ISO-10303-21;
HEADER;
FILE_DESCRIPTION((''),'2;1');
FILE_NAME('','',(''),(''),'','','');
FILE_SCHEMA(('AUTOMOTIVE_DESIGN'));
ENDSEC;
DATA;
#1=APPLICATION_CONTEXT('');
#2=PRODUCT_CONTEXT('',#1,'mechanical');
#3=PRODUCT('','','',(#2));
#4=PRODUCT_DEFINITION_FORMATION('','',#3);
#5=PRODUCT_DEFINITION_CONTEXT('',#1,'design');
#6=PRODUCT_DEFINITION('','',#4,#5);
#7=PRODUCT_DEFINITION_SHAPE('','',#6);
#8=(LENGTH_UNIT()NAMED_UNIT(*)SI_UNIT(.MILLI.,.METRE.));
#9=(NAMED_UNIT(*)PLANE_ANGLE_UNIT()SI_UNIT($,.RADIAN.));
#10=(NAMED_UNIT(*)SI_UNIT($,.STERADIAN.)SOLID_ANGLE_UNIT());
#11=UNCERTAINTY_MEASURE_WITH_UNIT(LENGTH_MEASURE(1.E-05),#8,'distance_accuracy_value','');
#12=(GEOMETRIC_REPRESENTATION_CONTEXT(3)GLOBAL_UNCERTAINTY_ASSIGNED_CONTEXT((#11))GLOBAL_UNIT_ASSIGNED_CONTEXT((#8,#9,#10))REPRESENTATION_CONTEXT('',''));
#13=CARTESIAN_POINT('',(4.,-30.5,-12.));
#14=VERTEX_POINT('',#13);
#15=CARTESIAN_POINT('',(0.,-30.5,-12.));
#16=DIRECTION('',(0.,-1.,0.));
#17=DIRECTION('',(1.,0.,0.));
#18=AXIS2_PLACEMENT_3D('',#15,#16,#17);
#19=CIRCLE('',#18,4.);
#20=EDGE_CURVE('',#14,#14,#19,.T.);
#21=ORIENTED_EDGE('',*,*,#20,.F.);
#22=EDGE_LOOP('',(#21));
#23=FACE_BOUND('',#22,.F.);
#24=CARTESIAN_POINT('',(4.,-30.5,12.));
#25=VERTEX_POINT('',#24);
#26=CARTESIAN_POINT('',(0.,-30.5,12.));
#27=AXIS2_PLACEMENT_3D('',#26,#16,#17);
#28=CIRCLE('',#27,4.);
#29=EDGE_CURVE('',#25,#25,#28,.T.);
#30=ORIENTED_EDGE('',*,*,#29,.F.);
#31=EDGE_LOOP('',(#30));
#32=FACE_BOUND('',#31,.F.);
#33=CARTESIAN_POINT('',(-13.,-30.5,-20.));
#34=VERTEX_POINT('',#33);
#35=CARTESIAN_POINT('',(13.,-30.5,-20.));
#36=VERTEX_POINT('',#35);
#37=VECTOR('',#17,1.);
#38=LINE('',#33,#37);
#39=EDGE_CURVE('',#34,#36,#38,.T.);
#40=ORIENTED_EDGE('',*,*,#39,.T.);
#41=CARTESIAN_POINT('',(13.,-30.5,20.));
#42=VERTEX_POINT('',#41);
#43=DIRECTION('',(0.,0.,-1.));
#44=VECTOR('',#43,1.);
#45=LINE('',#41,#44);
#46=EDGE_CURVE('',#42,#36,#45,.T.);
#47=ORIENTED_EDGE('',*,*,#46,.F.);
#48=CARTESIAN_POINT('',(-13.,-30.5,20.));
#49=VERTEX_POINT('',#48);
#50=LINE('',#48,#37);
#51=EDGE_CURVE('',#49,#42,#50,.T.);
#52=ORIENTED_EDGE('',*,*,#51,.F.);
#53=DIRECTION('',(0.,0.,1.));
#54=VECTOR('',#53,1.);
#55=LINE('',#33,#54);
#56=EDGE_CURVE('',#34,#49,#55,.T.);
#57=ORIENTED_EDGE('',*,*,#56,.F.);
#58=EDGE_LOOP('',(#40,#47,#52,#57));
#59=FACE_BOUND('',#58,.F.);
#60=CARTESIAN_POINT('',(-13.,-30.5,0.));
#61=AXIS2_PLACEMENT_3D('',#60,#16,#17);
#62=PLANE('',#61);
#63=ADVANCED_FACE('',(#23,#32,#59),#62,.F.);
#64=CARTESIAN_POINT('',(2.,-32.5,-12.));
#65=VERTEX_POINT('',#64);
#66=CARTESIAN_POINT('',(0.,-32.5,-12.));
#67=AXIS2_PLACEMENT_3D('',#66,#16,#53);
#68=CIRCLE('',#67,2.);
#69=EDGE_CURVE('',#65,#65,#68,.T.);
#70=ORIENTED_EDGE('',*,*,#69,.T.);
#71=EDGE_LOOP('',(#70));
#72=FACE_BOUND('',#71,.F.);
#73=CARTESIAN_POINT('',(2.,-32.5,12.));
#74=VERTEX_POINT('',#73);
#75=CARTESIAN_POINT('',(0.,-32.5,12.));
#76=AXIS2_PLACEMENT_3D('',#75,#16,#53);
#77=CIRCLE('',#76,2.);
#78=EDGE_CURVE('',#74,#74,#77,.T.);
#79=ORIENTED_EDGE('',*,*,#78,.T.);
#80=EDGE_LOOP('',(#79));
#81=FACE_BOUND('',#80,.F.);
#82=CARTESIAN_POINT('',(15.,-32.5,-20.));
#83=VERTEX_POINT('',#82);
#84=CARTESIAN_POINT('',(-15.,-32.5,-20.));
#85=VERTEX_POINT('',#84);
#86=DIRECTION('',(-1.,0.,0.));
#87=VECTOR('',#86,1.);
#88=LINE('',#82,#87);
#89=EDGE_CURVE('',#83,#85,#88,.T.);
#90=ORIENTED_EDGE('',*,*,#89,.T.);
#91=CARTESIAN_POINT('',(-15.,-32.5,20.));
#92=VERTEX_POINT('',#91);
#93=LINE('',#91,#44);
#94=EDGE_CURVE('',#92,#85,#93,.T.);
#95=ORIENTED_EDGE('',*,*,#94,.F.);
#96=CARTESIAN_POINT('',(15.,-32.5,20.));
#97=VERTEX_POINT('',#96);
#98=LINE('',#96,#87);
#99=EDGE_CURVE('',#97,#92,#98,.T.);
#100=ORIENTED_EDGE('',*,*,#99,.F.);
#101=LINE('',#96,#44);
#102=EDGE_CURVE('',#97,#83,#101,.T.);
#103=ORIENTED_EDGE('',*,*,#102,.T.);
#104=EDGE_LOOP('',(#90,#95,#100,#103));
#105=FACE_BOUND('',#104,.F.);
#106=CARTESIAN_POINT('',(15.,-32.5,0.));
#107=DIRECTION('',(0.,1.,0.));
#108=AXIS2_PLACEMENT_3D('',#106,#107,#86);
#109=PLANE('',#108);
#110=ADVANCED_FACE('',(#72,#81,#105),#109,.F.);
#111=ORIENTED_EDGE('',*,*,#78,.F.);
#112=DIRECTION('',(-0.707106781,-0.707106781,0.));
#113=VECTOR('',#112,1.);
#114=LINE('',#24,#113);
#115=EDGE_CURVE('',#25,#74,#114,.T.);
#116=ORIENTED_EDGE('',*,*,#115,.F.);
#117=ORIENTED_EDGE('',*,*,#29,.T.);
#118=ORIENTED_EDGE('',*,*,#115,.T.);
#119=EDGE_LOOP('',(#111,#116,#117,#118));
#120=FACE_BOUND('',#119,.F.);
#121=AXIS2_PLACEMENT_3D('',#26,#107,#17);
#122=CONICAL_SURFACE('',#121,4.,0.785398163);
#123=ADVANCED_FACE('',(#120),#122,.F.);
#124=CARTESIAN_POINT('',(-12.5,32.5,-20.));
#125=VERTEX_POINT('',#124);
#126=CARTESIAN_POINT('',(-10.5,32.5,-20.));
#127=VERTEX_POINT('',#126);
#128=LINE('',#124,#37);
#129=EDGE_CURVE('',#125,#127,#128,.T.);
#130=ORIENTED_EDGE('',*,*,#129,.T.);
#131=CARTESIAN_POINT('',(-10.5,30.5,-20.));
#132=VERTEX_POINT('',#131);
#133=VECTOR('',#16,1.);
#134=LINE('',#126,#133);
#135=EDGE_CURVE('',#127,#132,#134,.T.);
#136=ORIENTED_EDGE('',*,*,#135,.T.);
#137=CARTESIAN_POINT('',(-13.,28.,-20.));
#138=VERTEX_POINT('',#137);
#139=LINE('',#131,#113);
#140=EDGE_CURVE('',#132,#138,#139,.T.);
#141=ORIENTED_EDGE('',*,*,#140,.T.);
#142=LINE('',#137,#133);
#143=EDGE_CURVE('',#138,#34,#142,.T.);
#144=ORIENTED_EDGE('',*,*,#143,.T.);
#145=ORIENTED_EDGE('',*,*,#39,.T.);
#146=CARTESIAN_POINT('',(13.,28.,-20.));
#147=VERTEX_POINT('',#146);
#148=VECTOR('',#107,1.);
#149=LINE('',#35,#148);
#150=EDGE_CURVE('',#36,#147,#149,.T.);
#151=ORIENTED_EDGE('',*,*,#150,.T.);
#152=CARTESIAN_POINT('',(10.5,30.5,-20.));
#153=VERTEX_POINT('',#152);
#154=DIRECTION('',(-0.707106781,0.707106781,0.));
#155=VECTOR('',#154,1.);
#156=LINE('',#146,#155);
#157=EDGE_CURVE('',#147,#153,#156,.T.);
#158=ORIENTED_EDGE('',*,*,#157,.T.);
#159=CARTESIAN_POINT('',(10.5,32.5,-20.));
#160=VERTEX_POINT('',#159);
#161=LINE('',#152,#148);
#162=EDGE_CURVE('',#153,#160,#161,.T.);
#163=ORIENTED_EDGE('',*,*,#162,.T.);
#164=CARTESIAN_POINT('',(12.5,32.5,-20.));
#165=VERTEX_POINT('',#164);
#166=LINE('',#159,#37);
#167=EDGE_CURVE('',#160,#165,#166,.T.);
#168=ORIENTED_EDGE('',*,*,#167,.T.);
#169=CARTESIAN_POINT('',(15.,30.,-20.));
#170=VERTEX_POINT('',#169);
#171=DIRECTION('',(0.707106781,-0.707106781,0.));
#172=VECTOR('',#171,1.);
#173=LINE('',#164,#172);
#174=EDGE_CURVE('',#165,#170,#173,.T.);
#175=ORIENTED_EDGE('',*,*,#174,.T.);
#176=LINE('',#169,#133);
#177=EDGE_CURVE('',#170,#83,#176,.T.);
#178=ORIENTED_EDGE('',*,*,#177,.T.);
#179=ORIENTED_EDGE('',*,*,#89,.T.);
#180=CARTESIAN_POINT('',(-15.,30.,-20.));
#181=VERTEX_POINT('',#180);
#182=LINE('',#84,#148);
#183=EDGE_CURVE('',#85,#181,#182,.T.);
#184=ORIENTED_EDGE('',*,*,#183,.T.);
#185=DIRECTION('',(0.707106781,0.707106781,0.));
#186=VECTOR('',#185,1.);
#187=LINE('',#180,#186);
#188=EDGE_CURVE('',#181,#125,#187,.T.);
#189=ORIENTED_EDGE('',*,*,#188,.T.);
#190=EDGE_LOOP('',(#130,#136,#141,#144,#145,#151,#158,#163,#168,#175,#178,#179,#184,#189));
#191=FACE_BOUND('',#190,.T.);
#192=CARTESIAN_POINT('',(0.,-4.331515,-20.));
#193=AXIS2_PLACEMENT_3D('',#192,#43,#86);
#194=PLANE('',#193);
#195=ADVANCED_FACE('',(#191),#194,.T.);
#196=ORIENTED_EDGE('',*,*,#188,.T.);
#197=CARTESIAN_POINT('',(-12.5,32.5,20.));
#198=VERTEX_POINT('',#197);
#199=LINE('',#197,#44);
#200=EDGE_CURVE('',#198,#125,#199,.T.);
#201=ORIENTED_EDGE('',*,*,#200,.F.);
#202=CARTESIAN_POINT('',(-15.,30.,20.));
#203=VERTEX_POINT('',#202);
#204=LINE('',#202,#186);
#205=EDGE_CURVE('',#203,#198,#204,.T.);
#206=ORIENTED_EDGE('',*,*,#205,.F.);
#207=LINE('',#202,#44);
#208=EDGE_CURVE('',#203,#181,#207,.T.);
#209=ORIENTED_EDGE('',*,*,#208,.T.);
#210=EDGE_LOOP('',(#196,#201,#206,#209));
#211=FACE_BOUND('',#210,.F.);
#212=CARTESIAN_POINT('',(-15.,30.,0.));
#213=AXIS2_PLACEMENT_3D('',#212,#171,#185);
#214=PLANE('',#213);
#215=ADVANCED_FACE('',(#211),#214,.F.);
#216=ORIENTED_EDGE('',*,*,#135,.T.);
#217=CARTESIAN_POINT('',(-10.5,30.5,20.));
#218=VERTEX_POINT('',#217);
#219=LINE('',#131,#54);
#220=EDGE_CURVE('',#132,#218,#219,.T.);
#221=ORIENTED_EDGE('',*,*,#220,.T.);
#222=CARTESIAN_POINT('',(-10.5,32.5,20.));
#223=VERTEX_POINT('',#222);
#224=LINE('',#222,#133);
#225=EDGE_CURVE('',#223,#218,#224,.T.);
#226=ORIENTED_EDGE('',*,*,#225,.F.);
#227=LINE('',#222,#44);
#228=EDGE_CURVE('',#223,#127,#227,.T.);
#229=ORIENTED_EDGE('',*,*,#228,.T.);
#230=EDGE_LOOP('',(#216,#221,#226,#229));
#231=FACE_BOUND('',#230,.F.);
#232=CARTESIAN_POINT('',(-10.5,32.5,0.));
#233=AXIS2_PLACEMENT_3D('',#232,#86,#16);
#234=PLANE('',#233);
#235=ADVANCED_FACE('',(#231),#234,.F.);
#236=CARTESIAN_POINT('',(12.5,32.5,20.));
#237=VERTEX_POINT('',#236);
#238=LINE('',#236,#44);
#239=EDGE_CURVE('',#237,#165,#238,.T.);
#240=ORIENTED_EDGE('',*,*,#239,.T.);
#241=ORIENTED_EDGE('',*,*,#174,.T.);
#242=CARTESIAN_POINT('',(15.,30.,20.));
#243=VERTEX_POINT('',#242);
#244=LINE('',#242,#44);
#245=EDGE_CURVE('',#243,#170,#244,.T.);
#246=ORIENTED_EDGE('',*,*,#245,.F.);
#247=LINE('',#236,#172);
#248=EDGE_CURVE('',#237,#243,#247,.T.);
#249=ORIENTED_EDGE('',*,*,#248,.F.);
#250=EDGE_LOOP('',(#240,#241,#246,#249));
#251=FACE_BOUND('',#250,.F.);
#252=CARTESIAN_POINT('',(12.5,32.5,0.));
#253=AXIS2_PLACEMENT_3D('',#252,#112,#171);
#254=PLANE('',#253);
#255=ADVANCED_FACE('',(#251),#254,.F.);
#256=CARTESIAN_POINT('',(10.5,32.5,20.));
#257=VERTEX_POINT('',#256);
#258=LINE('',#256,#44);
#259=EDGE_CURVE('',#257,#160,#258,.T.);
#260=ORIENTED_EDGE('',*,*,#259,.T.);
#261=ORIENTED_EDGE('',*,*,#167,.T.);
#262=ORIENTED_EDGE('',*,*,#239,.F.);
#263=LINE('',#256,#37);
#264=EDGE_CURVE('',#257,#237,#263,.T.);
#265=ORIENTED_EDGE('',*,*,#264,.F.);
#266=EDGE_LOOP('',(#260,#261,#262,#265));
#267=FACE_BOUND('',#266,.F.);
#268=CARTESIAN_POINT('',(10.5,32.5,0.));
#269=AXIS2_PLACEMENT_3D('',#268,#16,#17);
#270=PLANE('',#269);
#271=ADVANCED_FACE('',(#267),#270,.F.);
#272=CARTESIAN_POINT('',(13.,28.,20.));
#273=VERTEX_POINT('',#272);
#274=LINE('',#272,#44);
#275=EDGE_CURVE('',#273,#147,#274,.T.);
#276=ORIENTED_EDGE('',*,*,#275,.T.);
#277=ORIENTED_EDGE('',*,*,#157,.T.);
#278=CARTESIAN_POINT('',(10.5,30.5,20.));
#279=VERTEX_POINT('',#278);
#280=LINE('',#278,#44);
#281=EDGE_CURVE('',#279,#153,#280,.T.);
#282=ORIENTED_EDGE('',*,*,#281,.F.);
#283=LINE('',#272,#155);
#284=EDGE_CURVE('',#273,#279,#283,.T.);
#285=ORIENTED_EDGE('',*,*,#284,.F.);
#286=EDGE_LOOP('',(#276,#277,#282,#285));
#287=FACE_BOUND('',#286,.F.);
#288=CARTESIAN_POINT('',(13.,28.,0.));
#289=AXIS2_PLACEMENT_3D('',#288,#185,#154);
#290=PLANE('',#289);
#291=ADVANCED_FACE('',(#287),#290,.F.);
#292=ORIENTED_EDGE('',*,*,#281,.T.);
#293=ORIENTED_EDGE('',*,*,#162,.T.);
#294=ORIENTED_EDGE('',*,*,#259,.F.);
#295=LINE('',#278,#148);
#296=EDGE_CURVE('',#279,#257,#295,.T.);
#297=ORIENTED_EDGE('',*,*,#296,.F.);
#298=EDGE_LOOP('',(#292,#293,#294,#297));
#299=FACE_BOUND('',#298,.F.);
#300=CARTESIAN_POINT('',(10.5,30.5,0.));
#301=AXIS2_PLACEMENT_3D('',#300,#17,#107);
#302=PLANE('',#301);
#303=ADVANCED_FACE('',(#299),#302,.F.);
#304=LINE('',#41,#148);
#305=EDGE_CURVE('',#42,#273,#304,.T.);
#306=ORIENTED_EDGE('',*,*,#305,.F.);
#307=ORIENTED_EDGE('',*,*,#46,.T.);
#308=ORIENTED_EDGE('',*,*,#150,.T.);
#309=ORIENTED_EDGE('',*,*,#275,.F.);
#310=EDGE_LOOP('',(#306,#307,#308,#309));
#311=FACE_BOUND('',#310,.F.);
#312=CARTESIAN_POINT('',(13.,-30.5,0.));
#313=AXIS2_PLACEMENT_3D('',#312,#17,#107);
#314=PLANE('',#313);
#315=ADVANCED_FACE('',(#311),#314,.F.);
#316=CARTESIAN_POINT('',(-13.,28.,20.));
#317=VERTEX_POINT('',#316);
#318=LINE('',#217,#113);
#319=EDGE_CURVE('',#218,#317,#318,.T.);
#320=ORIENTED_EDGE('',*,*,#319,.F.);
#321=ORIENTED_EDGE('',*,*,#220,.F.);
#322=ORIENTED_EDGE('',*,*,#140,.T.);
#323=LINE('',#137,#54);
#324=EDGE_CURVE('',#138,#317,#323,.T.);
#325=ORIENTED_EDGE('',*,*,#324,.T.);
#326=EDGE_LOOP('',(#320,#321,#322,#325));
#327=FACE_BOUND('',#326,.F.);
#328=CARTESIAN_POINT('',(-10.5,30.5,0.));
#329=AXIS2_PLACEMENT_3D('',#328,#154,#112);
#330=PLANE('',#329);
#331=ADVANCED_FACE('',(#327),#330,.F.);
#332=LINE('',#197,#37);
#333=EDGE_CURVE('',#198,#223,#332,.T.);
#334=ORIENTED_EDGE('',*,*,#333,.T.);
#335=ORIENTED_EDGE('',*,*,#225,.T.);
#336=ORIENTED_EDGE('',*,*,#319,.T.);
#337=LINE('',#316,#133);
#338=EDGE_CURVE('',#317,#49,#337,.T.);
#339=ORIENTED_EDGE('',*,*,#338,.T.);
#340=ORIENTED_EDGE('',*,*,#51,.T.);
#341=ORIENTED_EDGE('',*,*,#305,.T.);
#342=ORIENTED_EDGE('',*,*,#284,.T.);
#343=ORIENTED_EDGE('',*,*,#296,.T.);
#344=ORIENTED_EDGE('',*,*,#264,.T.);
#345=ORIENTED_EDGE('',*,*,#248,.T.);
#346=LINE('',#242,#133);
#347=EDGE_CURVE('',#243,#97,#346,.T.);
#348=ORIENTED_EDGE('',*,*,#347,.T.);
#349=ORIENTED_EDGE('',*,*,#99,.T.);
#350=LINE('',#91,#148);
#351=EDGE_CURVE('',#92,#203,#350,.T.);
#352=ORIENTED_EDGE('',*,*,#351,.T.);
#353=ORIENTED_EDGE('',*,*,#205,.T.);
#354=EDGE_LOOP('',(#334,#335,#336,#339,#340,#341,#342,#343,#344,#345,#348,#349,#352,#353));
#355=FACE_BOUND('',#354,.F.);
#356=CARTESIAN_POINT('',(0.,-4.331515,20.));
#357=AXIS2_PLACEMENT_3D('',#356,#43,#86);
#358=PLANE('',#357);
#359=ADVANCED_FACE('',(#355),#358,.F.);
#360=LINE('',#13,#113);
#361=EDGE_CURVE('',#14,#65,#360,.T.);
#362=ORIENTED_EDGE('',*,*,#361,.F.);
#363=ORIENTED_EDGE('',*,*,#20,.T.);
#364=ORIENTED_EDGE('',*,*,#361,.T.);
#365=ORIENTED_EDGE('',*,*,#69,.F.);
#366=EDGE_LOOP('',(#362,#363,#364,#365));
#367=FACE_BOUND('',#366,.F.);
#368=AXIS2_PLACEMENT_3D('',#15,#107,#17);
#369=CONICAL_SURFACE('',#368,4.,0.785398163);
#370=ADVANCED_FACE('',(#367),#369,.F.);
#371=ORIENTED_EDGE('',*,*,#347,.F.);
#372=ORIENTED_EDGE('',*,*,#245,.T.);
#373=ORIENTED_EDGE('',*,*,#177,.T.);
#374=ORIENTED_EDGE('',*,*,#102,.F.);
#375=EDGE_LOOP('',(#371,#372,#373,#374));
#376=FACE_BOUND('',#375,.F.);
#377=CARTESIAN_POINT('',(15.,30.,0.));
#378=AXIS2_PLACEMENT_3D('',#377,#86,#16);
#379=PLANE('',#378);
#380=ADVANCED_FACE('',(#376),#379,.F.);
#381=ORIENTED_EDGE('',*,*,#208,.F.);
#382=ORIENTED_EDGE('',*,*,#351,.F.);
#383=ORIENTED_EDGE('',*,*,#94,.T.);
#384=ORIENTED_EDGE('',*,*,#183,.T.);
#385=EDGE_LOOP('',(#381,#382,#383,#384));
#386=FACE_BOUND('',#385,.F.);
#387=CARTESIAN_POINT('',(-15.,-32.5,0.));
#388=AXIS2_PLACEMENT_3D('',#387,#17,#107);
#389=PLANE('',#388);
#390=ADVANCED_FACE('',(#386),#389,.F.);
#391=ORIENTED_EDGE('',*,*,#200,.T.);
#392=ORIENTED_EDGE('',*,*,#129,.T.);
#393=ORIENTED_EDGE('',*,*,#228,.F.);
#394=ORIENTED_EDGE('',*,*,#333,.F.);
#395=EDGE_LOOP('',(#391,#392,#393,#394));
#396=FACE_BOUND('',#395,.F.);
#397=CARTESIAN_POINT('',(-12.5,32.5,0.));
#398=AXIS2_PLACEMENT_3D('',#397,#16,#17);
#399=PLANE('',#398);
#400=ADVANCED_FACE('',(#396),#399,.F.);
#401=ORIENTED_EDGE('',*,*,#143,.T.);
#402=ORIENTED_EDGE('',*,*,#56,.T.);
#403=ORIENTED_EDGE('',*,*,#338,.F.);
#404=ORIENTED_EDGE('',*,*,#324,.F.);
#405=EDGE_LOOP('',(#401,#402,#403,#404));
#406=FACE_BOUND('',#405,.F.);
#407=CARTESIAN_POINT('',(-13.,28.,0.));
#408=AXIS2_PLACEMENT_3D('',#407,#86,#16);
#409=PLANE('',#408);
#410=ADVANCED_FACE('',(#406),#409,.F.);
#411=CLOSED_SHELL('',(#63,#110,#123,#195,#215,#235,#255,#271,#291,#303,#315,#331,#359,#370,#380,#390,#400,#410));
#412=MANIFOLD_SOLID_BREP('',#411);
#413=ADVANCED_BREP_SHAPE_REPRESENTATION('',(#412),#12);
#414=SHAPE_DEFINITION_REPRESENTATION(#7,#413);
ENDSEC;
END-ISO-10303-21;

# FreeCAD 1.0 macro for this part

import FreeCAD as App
import Part
import Sketcher

V = App.Vector

doc = App.newDocument("Part")
params = doc.addObject("Spreadsheet::Sheet", "Params")
for row, (alias, value) in enumerate([
    ("sketch1_width", "26 mm"),
    ("sketch1_width2", "2 mm"),
    ("sketch1_height", "58.5 mm"),
    ("sketch1_height2", "62.5 mm"),
    ("pad1_length", "40 mm"),
    ("sketch2_diameter", "4 mm"),
    ("hole_diameter", "4 mm"),
    ("hole_depth", "25 mm"),
    ("hole_csink_diameter", "8 mm"),
], start=1):
    params.set(f"A{row}", alias)
    params.set(f"B{row}", "=" + value)
    params.setAlias(f"B{row}", alias)

body = doc.addObject("PartDesign::Body", "Body")

# Sketch on XY plane
sketch1 = body.newObject("Sketcher::SketchObject", "Sketch")
sketch1.AttachmentSupport = (doc.getObject("XY_Plane"), [""])
sketch1.MapMode = "FlatFace"
sketch1.addGeometry(Part.LineSegment(V(13, -30.5, 0), V(-13, -30.5, 0)), False)
sketch1.addGeometry(Part.LineSegment(V(-13, -30.5, 0), V(-13, 28, 0)), False)
sketch1.addGeometry(Part.LineSegment(V(-13, 28, 0), V(-10.5, 30.5, 0)), False)
sketch1.addGeometry(Part.LineSegment(V(-10.5, 30.5, 0), V(-10.5, 32.5, 0)), False)
sketch1.addGeometry(Part.LineSegment(V(-10.5, 32.5, 0), V(-12.5, 32.5, 0)), False)
sketch1.addGeometry(Part.LineSegment(V(-12.5, 32.5, 0), V(-15, 30, 0)), False)
sketch1.addGeometry(Part.LineSegment(V(-15, 30, 0), V(-15, -32.5, 0)), False)
sketch1.addGeometry(Part.LineSegment(V(-15, -32.5, 0), V(15, -32.5, 0)), False)
sketch1.addGeometry(Part.LineSegment(V(15, -32.5, 0), V(15, 30, 0)), False)
sketch1.addGeometry(Part.LineSegment(V(15, 30, 0), V(12.5, 32.5, 0)), False)
sketch1.addGeometry(Part.LineSegment(V(12.5, 32.5, 0), V(10.5, 32.5, 0)), False)
sketch1.addGeometry(Part.LineSegment(V(10.5, 32.5, 0), V(10.5, 30.5, 0)), False)
sketch1.addGeometry(Part.LineSegment(V(10.5, 30.5, 0), V(13, 28, 0)), False)
sketch1.addGeometry(Part.LineSegment(V(13, 28, 0), V(13, -30.5, 0)), False)
sketch1.addConstraint(Sketcher.Constraint("Coincident", 0, 2, 1, 1))
sketch1.addConstraint(Sketcher.Constraint("Coincident", 1, 2, 2, 1))
sketch1.addConstraint(Sketcher.Constraint("Coincident", 2, 2, 3, 1))
sketch1.addConstraint(Sketcher.Constraint("Coincident", 3, 2, 4, 1))
sketch1.addConstraint(Sketcher.Constraint("Coincident", 4, 2, 5, 1))
sketch1.addConstraint(Sketcher.Constraint("Coincident", 5, 2, 6, 1))
sketch1.addConstraint(Sketcher.Constraint("Coincident", 6, 2, 7, 1))
sketch1.addConstraint(Sketcher.Constraint("Coincident", 7, 2, 8, 1))
sketch1.addConstraint(Sketcher.Constraint("Coincident", 8, 2, 9, 1))
sketch1.addConstraint(Sketcher.Constraint("Coincident", 9, 2, 10, 1))
sketch1.addConstraint(Sketcher.Constraint("Coincident", 10, 2, 11, 1))
sketch1.addConstraint(Sketcher.Constraint("Coincident", 11, 2, 12, 1))
sketch1.addConstraint(Sketcher.Constraint("Coincident", 12, 2, 13, 1))
sketch1.addConstraint(Sketcher.Constraint("Coincident", 13, 2, 0, 1))
sketch1.addConstraint(Sketcher.Constraint("Horizontal", 0))
sketch1.addConstraint(Sketcher.Constraint("Vertical", 1))
sketch1.addConstraint(Sketcher.Constraint("Vertical", 3))
sketch1.addConstraint(Sketcher.Constraint("Horizontal", 4))
sketch1.addConstraint(Sketcher.Constraint("Vertical", 6))
sketch1.addConstraint(Sketcher.Constraint("Horizontal", 7))
sketch1.addConstraint(Sketcher.Constraint("Vertical", 8))
sketch1.addConstraint(Sketcher.Constraint("Horizontal", 10))
sketch1.addConstraint(Sketcher.Constraint("Vertical", 11))
sketch1.addConstraint(Sketcher.Constraint("Vertical", 13))
sketch1.addConstraint(Sketcher.Constraint("Symmetric", 5, 2, 8, 2, -2))
sketch1.addConstraint(Sketcher.Constraint("Symmetric", 4, 2, 9, 2, -2))
sketch1.addConstraint(Sketcher.Constraint("Symmetric", 2, 2, 11, 2, -2))
sketch1.addConstraint(Sketcher.Constraint("Symmetric", 1, 2, 12, 2, -2))
sketch1.addConstraint(Sketcher.Constraint("Parallel", 2, 5))
sketch1.addConstraint(Sketcher.Constraint("Perpendicular", 5, 9))
sketch1.addConstraint(Sketcher.Constraint("Equal", 10, 3))
sketch1.addConstraint(Sketcher.Constraint("Equal", 2, 5))
sketch1.addConstraint(Sketcher.Constraint("DistanceX", 0, 2, 0, 1, 26.0))
sketch1.addConstraint(Sketcher.Constraint("DistanceX", 4, 2, 4, 1, 2.0))
sketch1.addConstraint(Sketcher.Constraint("DistanceY", 1, 1, 1, 2, 58.5))
sketch1.addConstraint(Sketcher.Constraint("DistanceY", 6, 2, 6, 1, 62.5))
sketch1.addConstraint(Sketcher.Constraint("DistanceY", -1, 1, 1, 2, 28.0))
sketch1.addConstraint(Sketcher.Constraint("DistanceY", 0, 2, 2, 2, 61.0))
sketch1.setExpression("Constraints[32]", "Params.sketch1_width")
sketch1.setExpression("Constraints[33]", "Params.sketch1_width2")
sketch1.setExpression("Constraints[34]", "Params.sketch1_height")
sketch1.setExpression("Constraints[35]", "Params.sketch1_height2")
pad1 = body.newObject("PartDesign::Pad", "Pad")
pad1.Profile = sketch1
pad1.setExpression("Length", "Params.pad1_length")
pad1.Midplane = True

# Sketch on XZ plane
sketch2 = body.newObject("Sketcher::SketchObject", "Sketch001")
sketch2.AttachmentSupport = (doc.getObject("XZ_Plane"), [""])
sketch2.MapMode = "FlatFace"
sketch2.AttachmentOffset = App.Placement(V(0, 0, 30.5), App.Rotation())
sketch2.addGeometry(Part.Circle(V(0, 12, 0), V(0, 0, 1), 2), False)
sketch2.addGeometry(Part.Circle(V(0, -12, 0), V(0, 0, 1), 2), False)
sketch2.addConstraint(Sketcher.Constraint("Equal", 0, 1))
sketch2.addConstraint(Sketcher.Constraint("Symmetric", 0, 3, 1, 3, -1, 1))
sketch2.addConstraint(Sketcher.Constraint("PointOnObject", 0, 3, -2))
sketch2.addConstraint(Sketcher.Constraint("Diameter", 0, 4.0))
sketch2.addConstraint(Sketcher.Constraint("DistanceY", -1, 1, 0, 3, 12.0))
sketch2.setExpression("Constraints[3]", "Params.sketch2_diameter")
doc.recompute()
hole = body.newObject("PartDesign::Hole", "Hole")
hole.Profile = sketch2
hole.ThreadType = "None"
hole.setExpression("Diameter", "Params.hole_diameter")
hole.DepthType = "Dimension"
hole.setExpression("Depth", "Params.hole_depth")
hole.DrillPoint = "Flat"
hole.HoleCutType = "Countersink"
hole.setExpression("HoleCutDiameter", "Params.hole_csink_diameter")
hole.HoleCutCountersinkAngle = 90
hole.Reversed = True

doc.recompute()
